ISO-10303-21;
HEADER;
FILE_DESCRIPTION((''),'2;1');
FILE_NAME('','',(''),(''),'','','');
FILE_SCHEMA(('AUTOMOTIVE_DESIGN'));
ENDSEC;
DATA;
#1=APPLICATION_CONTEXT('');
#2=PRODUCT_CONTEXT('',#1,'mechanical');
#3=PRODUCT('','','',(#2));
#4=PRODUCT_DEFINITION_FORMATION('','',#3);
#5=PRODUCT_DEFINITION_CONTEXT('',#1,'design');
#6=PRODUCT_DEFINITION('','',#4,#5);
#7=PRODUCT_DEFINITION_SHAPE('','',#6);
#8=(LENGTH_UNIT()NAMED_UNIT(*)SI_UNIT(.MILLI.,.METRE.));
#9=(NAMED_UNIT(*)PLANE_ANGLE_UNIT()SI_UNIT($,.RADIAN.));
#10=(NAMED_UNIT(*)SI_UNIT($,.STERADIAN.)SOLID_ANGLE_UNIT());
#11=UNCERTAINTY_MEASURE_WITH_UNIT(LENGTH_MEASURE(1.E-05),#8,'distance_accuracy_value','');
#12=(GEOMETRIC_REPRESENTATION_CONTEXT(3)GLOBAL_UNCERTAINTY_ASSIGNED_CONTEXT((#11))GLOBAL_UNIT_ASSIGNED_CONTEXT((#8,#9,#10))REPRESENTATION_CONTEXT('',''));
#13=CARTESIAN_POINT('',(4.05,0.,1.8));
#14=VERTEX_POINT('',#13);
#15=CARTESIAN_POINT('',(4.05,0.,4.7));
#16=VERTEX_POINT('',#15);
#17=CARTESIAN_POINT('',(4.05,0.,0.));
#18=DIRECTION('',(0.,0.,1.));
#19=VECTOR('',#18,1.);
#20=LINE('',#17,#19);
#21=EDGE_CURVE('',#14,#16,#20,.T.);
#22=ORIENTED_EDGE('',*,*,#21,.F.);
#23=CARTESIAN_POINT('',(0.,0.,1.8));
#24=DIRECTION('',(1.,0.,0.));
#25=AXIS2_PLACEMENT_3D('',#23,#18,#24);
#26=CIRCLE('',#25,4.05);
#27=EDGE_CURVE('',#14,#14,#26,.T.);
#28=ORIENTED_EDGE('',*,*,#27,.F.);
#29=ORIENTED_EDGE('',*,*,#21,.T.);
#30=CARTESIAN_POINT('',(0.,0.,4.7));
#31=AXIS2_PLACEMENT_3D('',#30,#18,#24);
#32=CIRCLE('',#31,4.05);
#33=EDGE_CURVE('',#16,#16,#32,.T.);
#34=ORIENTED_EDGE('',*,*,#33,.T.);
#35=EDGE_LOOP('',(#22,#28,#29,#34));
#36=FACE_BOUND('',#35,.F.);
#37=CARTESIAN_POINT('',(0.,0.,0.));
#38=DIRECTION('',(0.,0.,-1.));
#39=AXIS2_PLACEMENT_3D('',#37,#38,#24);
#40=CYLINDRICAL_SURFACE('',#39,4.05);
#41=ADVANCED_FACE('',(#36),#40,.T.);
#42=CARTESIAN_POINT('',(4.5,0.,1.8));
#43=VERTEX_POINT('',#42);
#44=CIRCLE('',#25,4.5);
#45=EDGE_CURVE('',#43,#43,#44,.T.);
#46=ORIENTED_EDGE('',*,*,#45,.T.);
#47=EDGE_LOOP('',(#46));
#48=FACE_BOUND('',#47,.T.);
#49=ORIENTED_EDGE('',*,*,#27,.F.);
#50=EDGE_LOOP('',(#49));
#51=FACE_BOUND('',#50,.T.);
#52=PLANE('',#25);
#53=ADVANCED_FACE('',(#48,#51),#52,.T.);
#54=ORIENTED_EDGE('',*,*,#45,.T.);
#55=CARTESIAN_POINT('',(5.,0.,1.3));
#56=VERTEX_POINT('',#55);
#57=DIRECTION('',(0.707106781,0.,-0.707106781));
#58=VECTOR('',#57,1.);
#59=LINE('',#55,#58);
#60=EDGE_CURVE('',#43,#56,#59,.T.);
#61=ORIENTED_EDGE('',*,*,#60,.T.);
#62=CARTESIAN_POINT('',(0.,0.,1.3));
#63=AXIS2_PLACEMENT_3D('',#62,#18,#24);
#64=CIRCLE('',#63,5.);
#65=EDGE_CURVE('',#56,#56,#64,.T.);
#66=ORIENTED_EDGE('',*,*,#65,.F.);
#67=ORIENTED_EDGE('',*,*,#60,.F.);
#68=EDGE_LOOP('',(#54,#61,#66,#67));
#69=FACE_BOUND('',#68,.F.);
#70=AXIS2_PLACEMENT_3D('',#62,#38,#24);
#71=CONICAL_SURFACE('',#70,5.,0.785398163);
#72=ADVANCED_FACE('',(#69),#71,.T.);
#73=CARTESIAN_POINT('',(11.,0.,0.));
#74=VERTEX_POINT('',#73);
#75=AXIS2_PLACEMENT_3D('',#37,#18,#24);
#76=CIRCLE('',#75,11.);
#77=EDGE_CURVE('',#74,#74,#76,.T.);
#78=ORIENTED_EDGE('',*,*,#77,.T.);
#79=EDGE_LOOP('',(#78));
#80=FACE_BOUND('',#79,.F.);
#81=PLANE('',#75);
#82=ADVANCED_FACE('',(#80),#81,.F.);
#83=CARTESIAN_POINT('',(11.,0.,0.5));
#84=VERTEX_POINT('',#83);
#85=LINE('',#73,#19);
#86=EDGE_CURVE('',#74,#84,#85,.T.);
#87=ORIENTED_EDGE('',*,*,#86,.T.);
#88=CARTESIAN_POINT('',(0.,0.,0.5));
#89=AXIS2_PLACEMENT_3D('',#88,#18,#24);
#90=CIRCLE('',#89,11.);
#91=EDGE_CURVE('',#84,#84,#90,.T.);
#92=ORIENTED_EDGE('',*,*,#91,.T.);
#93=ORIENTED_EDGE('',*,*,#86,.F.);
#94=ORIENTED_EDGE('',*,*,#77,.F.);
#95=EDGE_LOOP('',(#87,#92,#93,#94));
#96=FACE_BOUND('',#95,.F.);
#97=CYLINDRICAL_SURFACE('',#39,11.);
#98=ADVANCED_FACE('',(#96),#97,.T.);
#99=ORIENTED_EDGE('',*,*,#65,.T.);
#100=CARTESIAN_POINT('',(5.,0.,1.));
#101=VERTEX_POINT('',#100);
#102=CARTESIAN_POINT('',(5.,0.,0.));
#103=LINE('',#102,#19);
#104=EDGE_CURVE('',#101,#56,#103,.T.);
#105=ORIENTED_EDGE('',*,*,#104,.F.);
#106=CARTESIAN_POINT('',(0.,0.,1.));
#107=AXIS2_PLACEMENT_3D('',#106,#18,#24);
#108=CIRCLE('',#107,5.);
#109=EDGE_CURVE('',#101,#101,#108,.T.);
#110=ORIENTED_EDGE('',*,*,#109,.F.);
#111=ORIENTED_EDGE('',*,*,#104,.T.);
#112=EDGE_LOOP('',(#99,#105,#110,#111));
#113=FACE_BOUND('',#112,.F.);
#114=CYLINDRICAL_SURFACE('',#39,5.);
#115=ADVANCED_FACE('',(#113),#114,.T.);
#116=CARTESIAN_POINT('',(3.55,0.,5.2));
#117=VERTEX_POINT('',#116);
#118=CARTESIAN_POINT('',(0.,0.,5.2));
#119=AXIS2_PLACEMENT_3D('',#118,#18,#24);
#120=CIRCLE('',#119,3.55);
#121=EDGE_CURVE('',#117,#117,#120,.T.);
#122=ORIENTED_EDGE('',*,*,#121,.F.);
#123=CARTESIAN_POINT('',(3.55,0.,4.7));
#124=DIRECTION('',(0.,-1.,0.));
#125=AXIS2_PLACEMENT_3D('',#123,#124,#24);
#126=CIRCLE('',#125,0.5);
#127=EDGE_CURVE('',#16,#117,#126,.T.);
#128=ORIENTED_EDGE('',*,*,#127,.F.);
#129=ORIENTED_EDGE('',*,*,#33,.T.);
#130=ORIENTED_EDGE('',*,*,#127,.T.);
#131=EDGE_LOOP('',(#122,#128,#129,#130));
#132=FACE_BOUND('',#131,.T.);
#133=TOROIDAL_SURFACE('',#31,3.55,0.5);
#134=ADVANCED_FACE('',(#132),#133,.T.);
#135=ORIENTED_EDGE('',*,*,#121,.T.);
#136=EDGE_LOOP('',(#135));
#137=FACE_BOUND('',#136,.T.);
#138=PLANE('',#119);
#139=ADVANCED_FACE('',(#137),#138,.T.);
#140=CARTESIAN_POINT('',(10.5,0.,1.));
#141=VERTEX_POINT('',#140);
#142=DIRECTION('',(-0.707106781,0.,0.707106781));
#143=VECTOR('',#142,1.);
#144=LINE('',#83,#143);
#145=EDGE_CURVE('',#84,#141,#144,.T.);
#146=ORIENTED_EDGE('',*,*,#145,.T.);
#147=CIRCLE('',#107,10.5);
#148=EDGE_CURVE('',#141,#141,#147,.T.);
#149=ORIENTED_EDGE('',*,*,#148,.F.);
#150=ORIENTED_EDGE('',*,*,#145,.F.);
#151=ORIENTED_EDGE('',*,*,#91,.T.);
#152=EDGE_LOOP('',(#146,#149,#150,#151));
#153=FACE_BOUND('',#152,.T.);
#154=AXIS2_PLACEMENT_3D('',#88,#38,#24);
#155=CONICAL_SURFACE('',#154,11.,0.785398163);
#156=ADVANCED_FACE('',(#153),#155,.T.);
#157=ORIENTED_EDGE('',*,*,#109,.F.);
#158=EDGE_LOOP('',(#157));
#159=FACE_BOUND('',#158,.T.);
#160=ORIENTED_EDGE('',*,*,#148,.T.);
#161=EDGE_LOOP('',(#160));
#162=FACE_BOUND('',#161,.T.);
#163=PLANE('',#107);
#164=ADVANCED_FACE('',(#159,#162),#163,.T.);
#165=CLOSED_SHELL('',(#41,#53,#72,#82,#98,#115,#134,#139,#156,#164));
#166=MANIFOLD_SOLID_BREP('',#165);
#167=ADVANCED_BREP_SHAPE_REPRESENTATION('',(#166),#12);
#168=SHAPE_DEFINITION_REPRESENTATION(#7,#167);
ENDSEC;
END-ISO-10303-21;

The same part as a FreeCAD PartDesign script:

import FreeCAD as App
import Part
import Sketcher
from FreeCAD import Vector


def edges_at(feature, points):
    """Names of the edges that pass closest to the given points."""
    edges = feature.Shape.Edges
    near = lambda p: min(range(len(edges)), key=lambda i: edges[i].distToShape(Part.Vertex(*p))[0])
    return sorted({f"Edge{near(p) + 1}" for p in points})

doc = App.newDocument("Part")
body = doc.addObject("PartDesign::Body", "Body")

# Sketch on XY plane
sketch1 = doc.addObject("Sketcher::SketchObject", "Sketch")
body.addObject(sketch1)
sketch1.AttachmentSupport = (doc.XY_Plane, [""])
sketch1.MapMode = "FlatFace"
sketch1.addGeometry([
    Part.Circle(Vector(0, 0, 0), Vector(0, 0, 1), 11),
    Part.Circle(Vector(0, 0, 0), Vector(0, 0, 1), 5),
], False)
sketch1.addConstraint([
    Sketcher.Constraint("Coincident", 0, 3, -1, 1),
    Sketcher.Constraint("Coincident", 1, 3, -1, 1),
    Sketcher.Constraint("Diameter", 0, 22.0),
    Sketcher.Constraint("Diameter", 1, 10.0),
])
pad1 = doc.addObject("PartDesign::Pad", "Pad")
body.addObject(pad1)
pad1.Profile = sketch1
pad1.Length = 1
doc.recompute()

chamfer = doc.addObject("PartDesign::Chamfer", "Chamfer")
body.addObject(chamfer)
chamfer.Base = (pad1, edges_at(pad1, [(-11, 0, 1)]))
chamfer.Size = 0.5

# Sketch on XY plane
sketch2 = doc.addObject("Sketcher::SketchObject", "Sketch001")
body.addObject(sketch2)
sketch2.AttachmentSupport = (doc.XY_Plane, [""])
sketch2.MapMode = "FlatFace"
sketch2.addGeometry([
    Part.Circle(Vector(0, 0, 0), Vector(0, 0, 1), 5),
    Part.Circle(Vector(0, 0, 0), Vector(0, 0, 1), 4),
], False)
sketch2.addConstraint([
    Sketcher.Constraint("Coincident", 0, 3, -1, 1),
    Sketcher.Constraint("Coincident", 1, 3, -1, 1),
    Sketcher.Constraint("Diameter", 0, 10.0),
    Sketcher.Constraint("Diameter", 1, 8.1),
])
pad2 = doc.addObject("PartDesign::Pad", "Pad001")
body.addObject(pad2)
pad2.Profile = sketch2
pad2.Length = 1.8

# Sketch on XY plane
sketch3 = doc.addObject("Sketcher::SketchObject", "Sketch002")
body.addObject(sketch3)
sketch3.AttachmentSupport = (doc.XY_Plane, [""])
sketch3.MapMode = "FlatFace"
sketch3.addGeometry(Part.Circle(Vector(0, 0, 0), Vector(0, 0, 1), 4), False)
sketch3.addConstraint([
    Sketcher.Constraint("Coincident", 0, 3, -1, 1),
    Sketcher.Constraint("Diameter", 0, 8.1),
])
pad3 = doc.addObject("PartDesign::Pad", "Pad002")
body.addObject(pad3)
pad3.Profile = sketch3
pad3.Length = 5.2
doc.recompute()

fillet = doc.addObject("PartDesign::Fillet", "Fillet")
body.addObject(fillet)
fillet.Base = (pad3, edges_at(pad3, [(-4.05, 0, 5.2)]))
fillet.Radius = 0.5
doc.recompute()

chamfer2 = doc.addObject("PartDesign::Chamfer", "Chamfer001")
body.addObject(chamfer2)
chamfer2.Base = (fillet, edges_at(fillet, [(-5, 0, 1.8)]))
chamfer2.Size = 0.5

doc.recompute()
